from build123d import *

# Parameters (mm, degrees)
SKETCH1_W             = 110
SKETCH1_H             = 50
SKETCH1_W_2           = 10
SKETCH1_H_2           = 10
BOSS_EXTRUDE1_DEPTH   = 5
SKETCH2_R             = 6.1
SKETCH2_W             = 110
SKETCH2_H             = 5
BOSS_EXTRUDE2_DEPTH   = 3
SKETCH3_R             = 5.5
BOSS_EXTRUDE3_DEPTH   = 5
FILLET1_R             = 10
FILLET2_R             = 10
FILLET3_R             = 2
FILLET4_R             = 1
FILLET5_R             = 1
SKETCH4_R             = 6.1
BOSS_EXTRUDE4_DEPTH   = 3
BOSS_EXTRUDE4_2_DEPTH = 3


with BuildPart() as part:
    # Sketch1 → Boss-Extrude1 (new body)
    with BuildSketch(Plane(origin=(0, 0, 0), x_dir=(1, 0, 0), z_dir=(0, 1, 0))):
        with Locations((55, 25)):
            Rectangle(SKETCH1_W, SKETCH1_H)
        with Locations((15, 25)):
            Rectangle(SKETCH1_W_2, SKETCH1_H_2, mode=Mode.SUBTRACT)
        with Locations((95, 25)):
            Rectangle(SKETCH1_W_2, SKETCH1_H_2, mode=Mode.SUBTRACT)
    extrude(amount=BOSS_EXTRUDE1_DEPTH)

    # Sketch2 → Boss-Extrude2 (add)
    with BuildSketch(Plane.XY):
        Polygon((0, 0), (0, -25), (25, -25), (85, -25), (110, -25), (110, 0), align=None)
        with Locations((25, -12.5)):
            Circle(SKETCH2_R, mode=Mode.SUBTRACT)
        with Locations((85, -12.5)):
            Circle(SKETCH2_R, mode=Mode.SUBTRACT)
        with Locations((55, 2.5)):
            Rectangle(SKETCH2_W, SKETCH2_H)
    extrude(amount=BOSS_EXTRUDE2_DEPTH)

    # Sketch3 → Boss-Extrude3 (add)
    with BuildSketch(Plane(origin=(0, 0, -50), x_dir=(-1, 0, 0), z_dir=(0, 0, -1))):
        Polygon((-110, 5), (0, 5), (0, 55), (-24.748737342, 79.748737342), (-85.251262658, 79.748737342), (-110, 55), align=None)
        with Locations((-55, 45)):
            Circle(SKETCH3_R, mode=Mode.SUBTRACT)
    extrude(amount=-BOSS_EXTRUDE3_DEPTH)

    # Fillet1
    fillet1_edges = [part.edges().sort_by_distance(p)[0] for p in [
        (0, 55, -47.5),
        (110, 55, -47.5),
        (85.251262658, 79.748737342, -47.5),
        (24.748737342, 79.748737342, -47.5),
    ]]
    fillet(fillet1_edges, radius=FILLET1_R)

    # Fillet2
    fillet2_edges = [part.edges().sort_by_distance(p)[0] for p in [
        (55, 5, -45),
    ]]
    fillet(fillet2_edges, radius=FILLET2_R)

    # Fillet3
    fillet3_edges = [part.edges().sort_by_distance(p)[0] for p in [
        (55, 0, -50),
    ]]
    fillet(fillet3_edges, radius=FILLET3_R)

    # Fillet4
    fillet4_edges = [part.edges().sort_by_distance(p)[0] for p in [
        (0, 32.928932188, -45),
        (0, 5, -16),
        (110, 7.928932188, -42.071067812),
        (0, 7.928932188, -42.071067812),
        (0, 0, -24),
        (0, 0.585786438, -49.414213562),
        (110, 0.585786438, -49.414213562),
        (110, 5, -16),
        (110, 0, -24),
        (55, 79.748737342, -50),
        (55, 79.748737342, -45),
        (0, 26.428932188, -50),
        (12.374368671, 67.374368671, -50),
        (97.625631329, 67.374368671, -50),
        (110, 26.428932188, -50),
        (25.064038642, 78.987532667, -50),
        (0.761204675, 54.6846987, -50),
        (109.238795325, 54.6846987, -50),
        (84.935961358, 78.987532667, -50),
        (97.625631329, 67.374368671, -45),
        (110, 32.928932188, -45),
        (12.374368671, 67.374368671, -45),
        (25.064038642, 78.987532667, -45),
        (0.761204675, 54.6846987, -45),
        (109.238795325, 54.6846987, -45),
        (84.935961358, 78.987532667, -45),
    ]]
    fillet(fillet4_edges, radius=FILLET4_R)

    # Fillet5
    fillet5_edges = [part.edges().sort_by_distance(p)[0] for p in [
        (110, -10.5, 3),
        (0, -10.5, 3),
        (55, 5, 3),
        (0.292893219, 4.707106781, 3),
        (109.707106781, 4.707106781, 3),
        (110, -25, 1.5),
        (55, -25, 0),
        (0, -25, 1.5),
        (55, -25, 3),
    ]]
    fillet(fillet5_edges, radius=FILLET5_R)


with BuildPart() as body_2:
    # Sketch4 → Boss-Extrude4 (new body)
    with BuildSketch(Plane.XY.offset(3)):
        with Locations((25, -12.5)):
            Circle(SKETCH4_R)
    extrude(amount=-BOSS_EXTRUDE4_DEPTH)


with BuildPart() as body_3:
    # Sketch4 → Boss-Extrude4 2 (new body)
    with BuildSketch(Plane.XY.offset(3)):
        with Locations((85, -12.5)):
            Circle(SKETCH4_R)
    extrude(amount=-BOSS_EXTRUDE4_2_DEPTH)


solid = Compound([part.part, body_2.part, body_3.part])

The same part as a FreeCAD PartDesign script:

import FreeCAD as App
import Part
import Sketcher

V = App.Vector


def edges_at(feature, points):
    """Names of the edges that pass closest to the given points."""
    edges = feature.Shape.Edges
    near = lambda p: min(range(len(edges)), key=lambda i: edges[i].distToShape(Part.Vertex(*p))[0])
    return sorted({f"Edge{near(p) + 1}" for p in points})


def add_polygon(sketch, points):
    """Adds a closed chain of lines whose ends are joined by coincident constraints."""
    first, n = sketch.GeometryCount, len(points)
    for a, b in zip(points, points[1:] + points[:1]):
        sketch.addGeometry(Part.LineSegment(App.Vector(*a, 0), App.Vector(*b, 0)), False)
    for i in range(n):
        sketch.addConstraint(Sketcher.Constraint("Coincident", first + i, 2, first + (i + 1) % n, 1))

doc = App.newDocument("Part")
body = doc.addObject("PartDesign::Body", "Body")

# Sketch on XZ plane
sketch1 = body.newObject("Sketcher::SketchObject", "Sketch")
sketch1.AttachmentSupport = (doc.getObject("XZ_Plane"), [""])
sketch1.MapMode = "FlatFace"
add_polygon(sketch1, [(0, -50), (0, 0), (110, 0), (110, -50)])  # lines 0-3
add_polygon(sketch1, [(20, -20), (10, -20), (10, -30), (20, -30)])  # lines 4-7
add_polygon(sketch1, [(100, -20), (90, -20), (90, -30), (100, -30)])  # lines 8-11
sketch1.addConstraint(Sketcher.Constraint("Vertical", 0))
sketch1.addConstraint(Sketcher.Constraint("Horizontal", 1))
sketch1.addConstraint(Sketcher.Constraint("Vertical", 2))
sketch1.addConstraint(Sketcher.Constraint("Horizontal", 3))
sketch1.addConstraint(Sketcher.Constraint("Horizontal", 4))
sketch1.addConstraint(Sketcher.Constraint("Vertical", 5))
sketch1.addConstraint(Sketcher.Constraint("Horizontal", 6))
sketch1.addConstraint(Sketcher.Constraint("Vertical", 7))
sketch1.addConstraint(Sketcher.Constraint("Horizontal", 8))
sketch1.addConstraint(Sketcher.Constraint("Vertical", 9))
sketch1.addConstraint(Sketcher.Constraint("Horizontal", 10))
sketch1.addConstraint(Sketcher.Constraint("Vertical", 11))
sketch1.addConstraint(Sketcher.Constraint("Coincident", 0, 2, -1, 1))
sketch1.addConstraint(Sketcher.Constraint("Horizontal", 7, 2, 8, 2))
sketch1.addConstraint(Sketcher.Constraint("Horizontal", 6, 2, 9, 2))
sketch1.addConstraint(Sketcher.Constraint("Equal", 6, 8))
sketch1.addConstraint(Sketcher.Constraint("Equal", 10, 5))
sketch1.addConstraint(Sketcher.Constraint("DistanceX", 1, 1, 1, 2, 110.0))
sketch1.addConstraint(Sketcher.Constraint("DistanceX", 4, 2, 4, 1, 10.0))
sketch1.addConstraint(Sketcher.Constraint("DistanceY", 0, 1, 0, 2, 50.0))
sketch1.addConstraint(Sketcher.Constraint("DistanceX", -1, 1, 4, 2, 10.0))
sketch1.addConstraint(Sketcher.Constraint("DistanceY", 4, 2, -1, 1, 20.0))
sketch1.addConstraint(Sketcher.Constraint("DistanceX", -1, 1, 8, 2, 90.0))
pad1 = body.newObject("PartDesign::Pad", "Pad")
pad1.Profile = sketch1
pad1.Length = 5
pad1.Reversed = True

# Sketch on XY plane
sketch2 = body.newObject("Sketcher::SketchObject", "Sketch001")
sketch2.AttachmentSupport = (doc.getObject("XY_Plane"), [""])
sketch2.MapMode = "FlatFace"
add_polygon(sketch2, [(0, -25), (110, -25), (110, 5), (0, 5)])  # lines 0-3
sketch2.addGeometry(Part.Circle(V(25, -12, 0), V(0, 0, 1), 6), False)  # 4
sketch2.addGeometry(Part.Circle(V(85, -12, 0), V(0, 0, 1), 6), False)  # 5
sketch2.addConstraint(Sketcher.Constraint("Horizontal", 0))
sketch2.addConstraint(Sketcher.Constraint("Vertical", 1))
sketch2.addConstraint(Sketcher.Constraint("Horizontal", 2))
sketch2.addConstraint(Sketcher.Constraint("Vertical", 3))
sketch2.addConstraint(Sketcher.Constraint("Equal", 4, 5))
sketch2.addConstraint(Sketcher.Constraint("PointOnObject", 2, 2, -2))
sketch2.addConstraint(Sketcher.Constraint("Horizontal", 4, 3, 5, 3))
sketch2.addConstraint(Sketcher.Constraint("Diameter", 4, 12.2))
sketch2.addConstraint(Sketcher.Constraint("DistanceX", 0, 1, 0, 2, 110.0))
sketch2.addConstraint(Sketcher.Constraint("DistanceY", 1, 1, 1, 2, 30.0))
sketch2.addConstraint(Sketcher.Constraint("DistanceX", -1, 1, 4, 3, 25.0))
sketch2.addConstraint(Sketcher.Constraint("DistanceX", -1, 1, 5, 3, 85.0))
sketch2.addConstraint(Sketcher.Constraint("DistanceY", 0, 2, -1, 1, 25.0))
sketch2.addConstraint(Sketcher.Constraint("DistanceY", 4, 3, -1, 1, 12.5))
pad2 = body.newObject("PartDesign::Pad", "Pad001")
pad2.Profile = sketch2
pad2.Length = 3

# Sketch on XY plane
sketch3 = body.newObject("Sketcher::SketchObject", "Sketch002")
sketch3.AttachmentSupport = (doc.getObject("XY_Plane"), [""])
sketch3.MapMode = "FlatFace"
sketch3.AttachmentOffset = App.Placement(V(0, 0, -50), App.Rotation())
add_polygon(sketch3, [(110, 5), (0, 5), (0, 55), (25, 80), (85, 80), (110, 55)])  # lines 0-5
sketch3.addGeometry(Part.Circle(V(55, 45, 0), V(0, 0, 1), 6), False)  # 6
sketch3.addConstraint(Sketcher.Constraint("Horizontal", 0))
sketch3.addConstraint(Sketcher.Constraint("Vertical", 1))
sketch3.addConstraint(Sketcher.Constraint("Horizontal", 3))
sketch3.addConstraint(Sketcher.Constraint("Vertical", 5))
sketch3.addConstraint(Sketcher.Constraint("PointOnObject", 0, 2, -2))
sketch3.addConstraint(Sketcher.Constraint("Perpendicular", 2, 4))
sketch3.addConstraint(Sketcher.Constraint("Horizontal", 1, 2, 4, 2))
sketch3.addConstraint(Sketcher.Constraint("Equal", 2, 4))
sketch3.addConstraint(Sketcher.Constraint("Diameter", 6, 11.0))
sketch3.addConstraint(Sketcher.Constraint("DistanceX", 0, 2, 0, 1, 110.0))
sketch3.addConstraint(Sketcher.Constraint("DistanceY", 1, 1, 1, 2, 50.0))
sketch3.addConstraint(Sketcher.Constraint("Distance", 2, 35.0))
sketch3.addConstraint(Sketcher.Constraint("DistanceX", -1, 1, 6, 3, 55.0))
sketch3.addConstraint(Sketcher.Constraint("DistanceY", -1, 1, 6, 3, 45.0))
sketch3.addConstraint(Sketcher.Constraint("DistanceY", -1, 1, 0, 2, 5.0))
pad3 = body.newObject("PartDesign::Pad", "Pad002")
pad3.Profile = sketch3
pad3.Length = 5
doc.recompute()

fillet = body.newObject("PartDesign::Fillet", "Fillet")
fillet.Base = (pad3, edges_at(pad3, [
    (0, 55, -47.5),
    (110, 55, -47.5),
    (85.251, 79.749, -47.5),
    (24.749, 79.749, -47.5),
]))
fillet.Radius = 10
doc.recompute()

fillet2 = body.newObject("PartDesign::Fillet", "Fillet001")
fillet2.Base = (fillet, edges_at(fillet, [(55, 5, -45)]))
fillet2.Radius = 10
doc.recompute()

fillet3 = body.newObject("PartDesign::Fillet", "Fillet002")
fillet3.Base = (fillet2, edges_at(fillet2, [(55, 0, -50)]))
fillet3.Radius = 2
doc.recompute()

fillet4 = body.newObject("PartDesign::Fillet", "Fillet003")
fillet4.Base = (fillet3, edges_at(fillet3, [
    (0, 32.929, -45),
    (0, 5, -16),
    (110, 7.929, -42.071),
    (0, 7.929, -42.071),
    (0, 0, -24),
    (0, 0.586, -49.414),
    (110, 0.586, -49.414),
    (110, 5, -16),
    (110, 0, -24),
    (55, 79.749, -50),
    (55, 79.749, -45),
    (0, 26.429, -50),
    (12.374, 67.374, -50),
    (97.626, 67.374, -50),
    (110, 26.429, -50),
    (25.064, 78.988, -50),
    (0.761, 54.685, -50),
    (109.239, 54.685, -50),
    (84.936, 78.988, -50),
    (97.626, 67.374, -45),
    (110, 32.929, -45),
    (12.374, 67.374, -45),
    (25.064, 78.988, -45),
    (0.761, 54.685, -45),
    (109.239, 54.685, -45),
    (84.936, 78.988, -45),
]))
fillet4.Radius = 1
doc.recompute()

fillet5 = body.newObject("PartDesign::Fillet", "Fillet004")
fillet5.Base = (fillet4, edges_at(fillet4, [
    (110, -10.5, 3),
    (0, -10.5, 3),
    (55, 5, 3),
    (0.293, 4.707, 3),
    (109.707, 4.707, 3),
    (110, -25, 1.5),
    (55, -25, 0),
    (0, -25, 1.5),
    (55, -25, 3),
]))
fillet5.Radius = 1
body2 = doc.addObject("PartDesign::Body", "Body001")

# Sketch on XY plane
sketch4 = body2.newObject("Sketcher::SketchObject", "Sketch003")
sketch4.AttachmentSupport = (doc.getObject("XY_Plane001"), [""])
sketch4.MapMode = "FlatFace"
sketch4.AttachmentOffset = App.Placement(V(0, 0, 3), App.Rotation())
sketch4.addGeometry(Part.Circle(V(25, -12, 0), V(0, 0, 1), 6), False)
sketch4.addConstraint(Sketcher.Constraint("Diameter", 0, 12.2))
sketch4.addConstraint(Sketcher.Constraint("DistanceX", -1, 1, 0, 3, 25.0))
sketch4.addConstraint(Sketcher.Constraint("DistanceY", 0, 3, -1, 1, 12.5))
pad4 = body2.newObject("PartDesign::Pad", "Pad003")
pad4.Profile = sketch4
pad4.Length = 3
pad4.Reversed = True
body3 = doc.addObject("PartDesign::Body", "Body002")

# Sketch on XY plane
sketch5 = body3.newObject("Sketcher::SketchObject", "Sketch004")
sketch5.AttachmentSupport = (doc.getObject("XY_Plane002"), [""])
sketch5.MapMode = "FlatFace"
sketch5.AttachmentOffset = App.Placement(V(0, 0, 3), App.Rotation())
sketch5.addGeometry(Part.Circle(V(85, -12, 0), V(0, 0, 1), 6), False)
sketch5.addConstraint(Sketcher.Constraint("Diameter", 0, 12.2))
sketch5.addConstraint(Sketcher.Constraint("DistanceX", -1, 1, 0, 3, 85.0))
sketch5.addConstraint(Sketcher.Constraint("DistanceY", 0, 3, -1, 1, 12.5))
pad5 = body3.newObject("PartDesign::Pad", "Pad004")
pad5.Profile = sketch5
pad5.Length = 3
pad5.Reversed = True

doc.recompute()
